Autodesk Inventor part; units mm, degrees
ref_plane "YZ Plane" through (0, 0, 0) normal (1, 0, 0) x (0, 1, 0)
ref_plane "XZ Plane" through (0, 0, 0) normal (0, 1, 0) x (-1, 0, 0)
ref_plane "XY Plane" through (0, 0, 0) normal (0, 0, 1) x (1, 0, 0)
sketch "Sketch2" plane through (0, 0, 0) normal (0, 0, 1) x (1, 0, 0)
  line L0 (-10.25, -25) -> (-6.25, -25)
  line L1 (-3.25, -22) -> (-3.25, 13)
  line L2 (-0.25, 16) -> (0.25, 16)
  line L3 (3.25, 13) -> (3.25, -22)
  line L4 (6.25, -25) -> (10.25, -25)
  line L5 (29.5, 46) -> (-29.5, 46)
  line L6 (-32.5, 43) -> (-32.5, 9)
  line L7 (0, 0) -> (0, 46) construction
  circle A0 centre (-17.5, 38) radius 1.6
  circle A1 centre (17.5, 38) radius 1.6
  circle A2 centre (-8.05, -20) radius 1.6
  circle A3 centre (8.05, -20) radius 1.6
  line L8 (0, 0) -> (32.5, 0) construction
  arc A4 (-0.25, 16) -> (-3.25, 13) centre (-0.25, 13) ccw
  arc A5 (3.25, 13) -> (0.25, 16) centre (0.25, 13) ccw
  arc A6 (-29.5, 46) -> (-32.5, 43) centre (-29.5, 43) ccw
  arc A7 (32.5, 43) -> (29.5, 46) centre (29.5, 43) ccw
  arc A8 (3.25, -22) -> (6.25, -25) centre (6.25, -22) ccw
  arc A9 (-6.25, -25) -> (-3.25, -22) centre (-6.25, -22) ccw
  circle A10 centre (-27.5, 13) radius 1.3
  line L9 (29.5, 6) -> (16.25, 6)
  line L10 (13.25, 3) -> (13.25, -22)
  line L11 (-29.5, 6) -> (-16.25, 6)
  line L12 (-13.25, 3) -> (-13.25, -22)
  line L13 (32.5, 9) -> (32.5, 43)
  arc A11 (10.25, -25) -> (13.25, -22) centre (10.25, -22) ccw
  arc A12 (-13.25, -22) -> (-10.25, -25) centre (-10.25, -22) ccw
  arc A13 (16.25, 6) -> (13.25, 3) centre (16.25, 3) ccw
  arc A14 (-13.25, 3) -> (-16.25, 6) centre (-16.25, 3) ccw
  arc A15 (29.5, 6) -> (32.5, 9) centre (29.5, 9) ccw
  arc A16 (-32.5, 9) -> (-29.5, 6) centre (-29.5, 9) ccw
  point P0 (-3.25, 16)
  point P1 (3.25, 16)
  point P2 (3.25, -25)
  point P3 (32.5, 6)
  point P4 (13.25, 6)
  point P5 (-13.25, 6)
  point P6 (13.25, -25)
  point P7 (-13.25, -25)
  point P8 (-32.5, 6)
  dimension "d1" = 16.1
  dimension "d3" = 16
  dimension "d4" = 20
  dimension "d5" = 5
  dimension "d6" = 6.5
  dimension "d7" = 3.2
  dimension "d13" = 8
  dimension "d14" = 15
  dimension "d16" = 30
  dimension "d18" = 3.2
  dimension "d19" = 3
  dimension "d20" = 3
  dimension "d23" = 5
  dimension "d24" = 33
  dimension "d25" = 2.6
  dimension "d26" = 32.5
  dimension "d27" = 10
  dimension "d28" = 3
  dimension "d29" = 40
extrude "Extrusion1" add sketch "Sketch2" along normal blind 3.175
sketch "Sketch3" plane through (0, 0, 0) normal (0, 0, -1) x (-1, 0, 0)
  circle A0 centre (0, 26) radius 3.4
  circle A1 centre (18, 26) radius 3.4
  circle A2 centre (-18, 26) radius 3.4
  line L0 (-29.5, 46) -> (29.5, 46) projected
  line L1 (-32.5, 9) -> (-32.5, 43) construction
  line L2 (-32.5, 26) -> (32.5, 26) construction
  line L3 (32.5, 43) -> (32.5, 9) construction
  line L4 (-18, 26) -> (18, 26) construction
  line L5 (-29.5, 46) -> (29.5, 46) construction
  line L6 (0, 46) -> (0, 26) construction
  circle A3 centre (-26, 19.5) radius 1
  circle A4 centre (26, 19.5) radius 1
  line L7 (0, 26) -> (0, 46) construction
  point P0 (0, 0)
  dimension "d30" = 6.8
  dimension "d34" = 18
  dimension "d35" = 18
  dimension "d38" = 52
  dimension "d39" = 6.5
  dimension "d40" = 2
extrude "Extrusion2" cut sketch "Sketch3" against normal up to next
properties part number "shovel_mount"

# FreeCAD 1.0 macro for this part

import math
import FreeCAD as App
import Part
import Sketcher
Q = App.Units.Quantity

doc = App.newDocument("Part")
body = doc.addObject("PartDesign::Body", "Body")

sketch1 = body.newObject("Sketcher::SketchObject", "Sketch")
sketch1.AttachmentSupport = (doc.getObject("XY_Plane"), [""])
sketch1.MapMode = "FlatFace"
sketch1.addGeometry([
    Part.ArcOfCircle(Part.Circle(App.Vector(-10.25, -22, 0), App.Vector(0, 0, 1), 3), math.radians(180), math.radians(270)),
    Part.LineSegment(App.Vector(-10.25, -25, 0), App.Vector(-6.25, -25, 0)),
    Part.ArcOfCircle(Part.Circle(App.Vector(-6.25, -22, 0), App.Vector(0, 0, 1), 3), math.radians(-90), math.radians(0)),
    Part.LineSegment(App.Vector(-3.25, -22, 0), App.Vector(-3.25, 13, 0)),
    Part.ArcOfCircle(Part.Circle(App.Vector(-0.25, 13, 0), App.Vector(0, 0, 1), 3), math.radians(90), math.radians(180)),
    Part.LineSegment(App.Vector(-0.25, 16, 0), App.Vector(0.25, 16, 0)),
    Part.ArcOfCircle(Part.Circle(App.Vector(0.25, 13, 0), App.Vector(0, 0, 1), 3), math.radians(0), math.radians(90)),
    Part.LineSegment(App.Vector(3.25, 13, 0), App.Vector(3.25, -22, 0)),
    Part.ArcOfCircle(Part.Circle(App.Vector(6.25, -22, 0), App.Vector(0, 0, 1), 3), math.radians(180), math.radians(270)),
    Part.LineSegment(App.Vector(6.25, -25, 0), App.Vector(10.25, -25, 0)),
    Part.ArcOfCircle(Part.Circle(App.Vector(10.25, -22, 0), App.Vector(0, 0, 1), 3), math.radians(-90), math.radians(0)),
    Part.LineSegment(App.Vector(13.25, -22, 0), App.Vector(13.25, 3, 0)),
    Part.ArcOfCircle(Part.Circle(App.Vector(16.25, 3, 0), App.Vector(0, 0, 1), 3), math.radians(90), math.radians(180)),
    Part.LineSegment(App.Vector(16.25, 6, 0), App.Vector(29.5, 6, 0)),
    Part.ArcOfCircle(Part.Circle(App.Vector(29.5, 9, 0), App.Vector(0, 0, 1), 3), math.radians(-90), math.radians(0)),
    Part.LineSegment(App.Vector(32.5, 9, 0), App.Vector(32.5, 43, 0)),
    Part.ArcOfCircle(Part.Circle(App.Vector(29.5, 43, 0), App.Vector(0, 0, 1), 3), math.radians(0), math.radians(90)),
    Part.LineSegment(App.Vector(29.5, 46, 0), App.Vector(-29.5, 46, 0)),
    Part.ArcOfCircle(Part.Circle(App.Vector(-29.5, 43, 0), App.Vector(0, 0, 1), 3), math.radians(90), math.radians(180)),
    Part.LineSegment(App.Vector(-32.5, 43, 0), App.Vector(-32.5, 9, 0)),
    Part.ArcOfCircle(Part.Circle(App.Vector(-29.5, 9, 0), App.Vector(0, 0, 1), 3), math.radians(180), math.radians(270)),
    Part.LineSegment(App.Vector(-29.5, 6, 0), App.Vector(-16.25, 6, 0)),
    Part.ArcOfCircle(Part.Circle(App.Vector(-16.25, 3, 0), App.Vector(0, 0, 1), 3), math.radians(0), math.radians(90)),
    Part.LineSegment(App.Vector(-13.25, 3, 0), App.Vector(-13.25, -22, 0)),
    Part.Circle(App.Vector(-8.05, -20, 0), App.Vector(0, 0, 1), 1.6),
    Part.Circle(App.Vector(8.05, -20, 0), App.Vector(0, 0, 1), 1.6),
    Part.Circle(App.Vector(-27.5, 13, 0), App.Vector(0, 0, 1), 1.3),
    Part.Circle(App.Vector(-17.5, 38, 0), App.Vector(0, 0, 1), 1.6),
    Part.Circle(App.Vector(17.5, 38, 0), App.Vector(0, 0, 1), 1.6),
], False)
sketch1.addConstraint([
    Sketcher.Constraint("Tangent", 0, 2, 1, 1),
    Sketcher.Constraint("Tangent", 1, 2, 2, 1),
    Sketcher.Constraint("Tangent", 2, 2, 3, 1),
    Sketcher.Constraint("Tangent", 3, 2, 4, 2),
    Sketcher.Constraint("Tangent", 4, 1, 5, 1),
    Sketcher.Constraint("Tangent", 5, 2, 6, 2),
    Sketcher.Constraint("Tangent", 6, 1, 7, 1),
    Sketcher.Constraint("Tangent", 7, 2, 8, 1),
    Sketcher.Constraint("Tangent", 8, 2, 9, 1),
    Sketcher.Constraint("Tangent", 9, 2, 10, 1),
    Sketcher.Constraint("Tangent", 10, 2, 11, 1),
    Sketcher.Constraint("Tangent", 11, 2, 12, 2),
    Sketcher.Constraint("Tangent", 12, 1, 13, 1),
    Sketcher.Constraint("Tangent", 13, 2, 14, 1),
    Sketcher.Constraint("Tangent", 14, 2, 15, 1),
    Sketcher.Constraint("Tangent", 15, 2, 16, 1),
    Sketcher.Constraint("Tangent", 16, 2, 17, 1),
    Sketcher.Constraint("Tangent", 17, 2, 18, 1),
    Sketcher.Constraint("Tangent", 18, 2, 19, 1),
    Sketcher.Constraint("Tangent", 19, 2, 20, 1),
    Sketcher.Constraint("Tangent", 20, 2, 21, 1),
    Sketcher.Constraint("Tangent", 21, 2, 22, 2),
    Sketcher.Constraint("Tangent", 22, 1, 23, 1),
    Sketcher.Constraint("Tangent", 23, 2, 0, 1),
    Sketcher.Constraint("Horizontal", 1),
    Sketcher.Constraint("Vertical", 3),
    Sketcher.Constraint("Horizontal", 5),
    Sketcher.Constraint("Vertical", 7),
    Sketcher.Constraint("Horizontal", 9),
    Sketcher.Constraint("Vertical", 11),
    Sketcher.Constraint("Horizontal", 13),
    Sketcher.Constraint("Vertical", 15),
    Sketcher.Constraint("Horizontal", 17),
    Sketcher.Constraint("Vertical", 19),
    Sketcher.Constraint("Horizontal", 21),
    Sketcher.Constraint("Vertical", 23),
    Sketcher.Constraint("Equal", 0, 2),
    Sketcher.Constraint("Equal", 2, 4),
    Sketcher.Constraint("Equal", 4, 6),
    Sketcher.Constraint("Equal", 6, 8),
    Sketcher.Constraint("Equal", 8, 10),
    Sketcher.Constraint("Equal", 10, 12),
    Sketcher.Constraint("Equal", 12, 14),
    Sketcher.Constraint("Equal", 14, 16),
    Sketcher.Constraint("Equal", 16, 18),
    Sketcher.Constraint("Equal", 18, 20),
    Sketcher.Constraint("Equal", 20, 22),
    Sketcher.Constraint("Equal", 24, 25),
    Sketcher.Constraint("Equal", 25, 27),
    Sketcher.Constraint("Equal", 27, 28),
    Sketcher.Constraint("Symmetric", 2, 3, 8, 3, -2),
    Sketcher.Constraint("Symmetric", 14, 3, 20, 3, -2),
    Sketcher.Constraint("Symmetric", 24, 3, 25, 3, -2),
    Sketcher.Constraint("Symmetric", 27, 3, 28, 3, -2),
    Sketcher.Constraint("Horizontal", 6, 3, 26, 3),
    Sketcher.Constraint("Equal", 1, 9),
    Sketcher.Constraint("Radius", 0, Q("3 mm")),
    Sketcher.Constraint("Diameter", 24, Q("3.2 mm")),
    Sketcher.Constraint("Diameter", 26, Q("2.6 mm")),
    Sketcher.Constraint("DistanceY", -1, 1, 12, 3, Q("3 mm")),
    Sketcher.Constraint("DistanceY", 24, 3, -1, 1, Q("20 mm")),
    Sketcher.Constraint("DistanceY", -1, 1, 4, 1, Q("16 mm")),
    Sketcher.Constraint("DistanceX", 0, 3, 4, 3, Q("10 mm")),
    Sketcher.Constraint("DistanceY", 6, 3, 16, 3, Q("30 mm")),
    Sketcher.Constraint("DistanceY", 27, 3, 18, 3, Q("5 mm")),
    Sketcher.Constraint("DistanceX", 26, 3, 27, 3, Q("10 mm")),
    Sketcher.Constraint("DistanceY", 0, 2, 24, 3, Q("5 mm")),
    Sketcher.Constraint("DistanceX", 28, 3, 15, 2, Q("15 mm")),
    Sketcher.Constraint("DistanceX", -1, 1, 14, 2, Q("32.5 mm")),
    Sketcher.Constraint("DistanceX", 2, 3, 6, 3, Q("6.5 mm")),
    Sketcher.Constraint("DistanceX", 24, 3, 25, 3, Q("16.1 mm")),
])
pad1 = body.newObject("PartDesign::Pad", "Pad")
pad1.Profile = sketch1
pad1.Length = 3.175

sketch2 = body.newObject("Sketcher::SketchObject", "Sketch001")
sketch2.AttachmentSupport = (doc.getObject("XY_Plane"), [""])
sketch2.MapMode = "FlatFace"
sketch2.addGeometry([
    Part.Circle(App.Vector(0, 26, 0), App.Vector(0, 0, 1), 3.4),
    Part.Circle(App.Vector(-18, 26, 0), App.Vector(0, 0, 1), 3.4),
    Part.Circle(App.Vector(18, 26, 0), App.Vector(0, 0, 1), 3.4),
    Part.Circle(App.Vector(26, 19.5, 0), App.Vector(0, 0, 1), 1),
    Part.Circle(App.Vector(-26, 19.5, 0), App.Vector(0, 0, 1), 1),
], False)
sketch2.addConstraint([
    Sketcher.Constraint("Equal", 0, 1),
    Sketcher.Constraint("Equal", 1, 2),
    Sketcher.Constraint("Equal", 3, 4),
    Sketcher.Constraint("Symmetric", 1, 3, 2, 3, -2),
    Sketcher.Constraint("Symmetric", 3, 3, 4, 3, -2),
    Sketcher.Constraint("PointOnObject", 0, 3, -2),
    Sketcher.Constraint("Horizontal", 0, 3, 1, 3),
    Sketcher.Constraint("Diameter", 3, Q("2 mm")),
    Sketcher.Constraint("Diameter", 0, Q("6.8 mm")),
    Sketcher.Constraint("DistanceX", 1, 3, -1, 1, Q("18 mm")),
    Sketcher.Constraint("DistanceX", 4, 3, 3, 3, Q("52 mm")),
    Sketcher.Constraint("DistanceY", 3, 3, 2, 3, Q("6.5 mm")),
    Sketcher.Constraint("DistanceY", -1, 1, 0, 3, Q("26 mm")),
])
pocket1 = body.newObject("PartDesign::Pocket", "Pocket")
pocket1.Profile = sketch2
pocket1.Type = "UpToFirst"
pocket1.Reversed = True

doc.recompute()
